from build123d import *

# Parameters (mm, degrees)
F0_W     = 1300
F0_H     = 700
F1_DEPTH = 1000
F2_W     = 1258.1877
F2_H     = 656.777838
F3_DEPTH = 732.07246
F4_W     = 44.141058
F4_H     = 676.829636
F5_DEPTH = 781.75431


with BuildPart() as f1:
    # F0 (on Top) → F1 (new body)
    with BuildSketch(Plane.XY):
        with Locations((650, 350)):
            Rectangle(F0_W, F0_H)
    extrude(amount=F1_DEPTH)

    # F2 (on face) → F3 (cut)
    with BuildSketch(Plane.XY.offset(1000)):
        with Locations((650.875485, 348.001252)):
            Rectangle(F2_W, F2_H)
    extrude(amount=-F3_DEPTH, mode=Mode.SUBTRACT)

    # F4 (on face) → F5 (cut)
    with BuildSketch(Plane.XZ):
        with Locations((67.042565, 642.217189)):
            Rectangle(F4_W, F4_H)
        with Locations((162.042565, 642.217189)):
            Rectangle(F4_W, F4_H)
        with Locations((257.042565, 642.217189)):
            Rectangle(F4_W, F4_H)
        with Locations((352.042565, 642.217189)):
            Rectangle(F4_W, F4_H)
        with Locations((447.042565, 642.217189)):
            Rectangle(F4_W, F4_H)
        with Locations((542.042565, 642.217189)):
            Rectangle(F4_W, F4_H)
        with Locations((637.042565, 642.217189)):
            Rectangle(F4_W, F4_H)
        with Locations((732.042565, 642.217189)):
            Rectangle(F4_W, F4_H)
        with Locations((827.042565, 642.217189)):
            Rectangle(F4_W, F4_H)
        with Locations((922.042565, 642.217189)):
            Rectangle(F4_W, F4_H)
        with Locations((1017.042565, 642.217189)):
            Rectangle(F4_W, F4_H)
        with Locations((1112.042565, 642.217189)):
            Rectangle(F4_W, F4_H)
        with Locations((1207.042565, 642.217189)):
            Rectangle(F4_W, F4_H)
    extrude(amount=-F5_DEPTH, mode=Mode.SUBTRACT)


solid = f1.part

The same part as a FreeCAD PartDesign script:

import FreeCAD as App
import Part
import Sketcher
from FreeCAD import Vector
Q = App.Units.Quantity


def add_polygon(sketch, points):
    """Adds a closed chain of lines whose ends are joined by coincident constraints."""
    first, n = sketch.GeometryCount, len(points)
    for a, b in zip(points, points[1:] + points[:1]):
        sketch.addGeometry(Part.LineSegment(App.Vector(*a, 0), App.Vector(*b, 0)), False)
    for i in range(n):
        sketch.addConstraint(Sketcher.Constraint("Coincident", first + i, 2, first + (i + 1) % n, 1))

doc = App.newDocument("Part")
body = doc.addObject("PartDesign::Body", "Body")

# Sketch on XY plane
sketch1 = body.newObject("Sketcher::SketchObject", "Sketch")
sketch1.AttachmentSupport = (doc.getObject("XY_Plane"), [""])
sketch1.MapMode = "FlatFace"
add_polygon(sketch1, [(0, 700), (0, 0), (1300, 0), (1300, 700)])  # lines 0-3
sketch1.addConstraint(Sketcher.Constraint("Vertical", 0))
sketch1.addConstraint(Sketcher.Constraint("Horizontal", 1))
sketch1.addConstraint(Sketcher.Constraint("Vertical", 2))
sketch1.addConstraint(Sketcher.Constraint("Horizontal", 3))
sketch1.addConstraint(Sketcher.Constraint("Coincident", 0, 2, -1, 1))
sketch1.addConstraint(Sketcher.Constraint("DistanceX", 1, 1, 1, 2, Q("1300 mm")))
sketch1.addConstraint(Sketcher.Constraint("DistanceY", 0, 2, 0, 1, Q("700 mm")))
pad1 = body.newObject("PartDesign::Pad", "Pad")
pad1.Profile = sketch1
pad1.Length = 1000

# Sketch on XY plane
sketch2 = body.newObject("Sketcher::SketchObject", "Sketch001")
sketch2.AttachmentSupport = (doc.getObject("XY_Plane"), [""])
sketch2.MapMode = "FlatFace"
sketch2.AttachmentOffset = App.Placement(Vector(0, 0, 1000), App.Rotation())
add_polygon(sketch2, [(21.781635, 676.390171), (21.781635, 19.612333), (1279.969335, 19.612333), (1279.969335, 676.390171)])  # lines 0-3
sketch2.addConstraint(Sketcher.Constraint("Vertical", 0))
sketch2.addConstraint(Sketcher.Constraint("Horizontal", 1))
sketch2.addConstraint(Sketcher.Constraint("Vertical", 2))
sketch2.addConstraint(Sketcher.Constraint("Horizontal", 3))
sketch2.addConstraint(Sketcher.Constraint("DistanceX", 1, 1, 1, 2, Q("1258.1877 mm")))
sketch2.addConstraint(Sketcher.Constraint("DistanceY", 0, 2, 0, 1, Q("656.777838 mm")))
sketch2.addConstraint(Sketcher.Constraint("DistanceY", -1, 1, 2, 2, Q("676.390171 mm")))
sketch2.addConstraint(Sketcher.Constraint("DistanceX", -1, 1, 0, 2, Q("21.781635 mm")))
pocket1 = body.newObject("PartDesign::Pocket", "Pocket")
pocket1.Profile = sketch2
pocket1.Length = 732.07246

# Sketch on XZ plane
sketch3 = body.newObject("Sketcher::SketchObject", "Sketch002")
sketch3.AttachmentSupport = (doc.getObject("XZ_Plane"), [""])
sketch3.MapMode = "FlatFace"
add_polygon(sketch3, [(44.972036, 980.632007), (44.972036, 303.802371), (89.113094, 303.802371), (89.113094, 980.632007)])  # lines 0-3
add_polygon(sketch3, [(139.972036, 980.632007), (139.972036, 303.802371), (184.113094, 303.802371), (184.113094, 980.632007)])  # lines 4-7
add_polygon(sketch3, [(234.972036, 980.632007), (234.972036, 303.802371), (279.113094, 303.802371), (279.113094, 980.632007)])  # lines 8-11
add_polygon(sketch3, [(329.972036, 980.632007), (329.972036, 303.802371), (374.113094, 303.802371), (374.113094, 980.632007)])  # lines 12-15
add_polygon(sketch3, [(424.972036, 980.632007), (424.972036, 303.802371), (469.113094, 303.802371), (469.113094, 980.632007)])  # lines 16-19
add_polygon(sketch3, [(519.972036, 980.632007), (519.972036, 303.802371), (564.113094, 303.802371), (564.113094, 980.632007)])  # lines 20-23
add_polygon(sketch3, [(614.972036, 980.632007), (614.972036, 303.802371), (659.113094, 303.802371), (659.113094, 980.632007)])  # lines 24-27
add_polygon(sketch3, [(709.972036, 980.632007), (709.972036, 303.802371), (754.113094, 303.802371), (754.113094, 980.632007)])  # lines 28-31
add_polygon(sketch3, [(804.972036, 980.632007), (804.972036, 303.802371), (849.113094, 303.802371), (849.113094, 980.632007)])  # lines 32-35
add_polygon(sketch3, [(899.972036, 980.632007), (899.972036, 303.802371), (944.113094, 303.802371), (944.113094, 980.632007)])  # lines 36-39
add_polygon(sketch3, [(994.972036, 980.632007), (994.972036, 303.802371), (1039.113094, 303.802371), (1039.113094, 980.632007)])  # lines 40-43
add_polygon(sketch3, [(1089.972036, 980.632007), (1089.972036, 303.802371), (1134.113094, 303.802371), (1134.113094, 980.632007)])  # lines 44-47
add_polygon(sketch3, [(1184.972036, 980.632007), (1184.972036, 303.802371), (1229.113094, 303.802371), (1229.113094, 980.632007)])  # lines 48-51
sketch3.addConstraint(Sketcher.Constraint("Vertical", 0))
sketch3.addConstraint(Sketcher.Constraint("Horizontal", 1))
sketch3.addConstraint(Sketcher.Constraint("Vertical", 2))
sketch3.addConstraint(Sketcher.Constraint("Horizontal", 3))
sketch3.addConstraint(Sketcher.Constraint("Vertical", 4))
sketch3.addConstraint(Sketcher.Constraint("Horizontal", 5))
sketch3.addConstraint(Sketcher.Constraint("Vertical", 6))
sketch3.addConstraint(Sketcher.Constraint("Horizontal", 7))
sketch3.addConstraint(Sketcher.Constraint("Vertical", 8))
sketch3.addConstraint(Sketcher.Constraint("Horizontal", 9))
sketch3.addConstraint(Sketcher.Constraint("Vertical", 10))
sketch3.addConstraint(Sketcher.Constraint("Horizontal", 11))
sketch3.addConstraint(Sketcher.Constraint("Vertical", 12))
sketch3.addConstraint(Sketcher.Constraint("Horizontal", 13))
sketch3.addConstraint(Sketcher.Constraint("Vertical", 14))
sketch3.addConstraint(Sketcher.Constraint("Horizontal", 15))
sketch3.addConstraint(Sketcher.Constraint("Vertical", 16))
sketch3.addConstraint(Sketcher.Constraint("Horizontal", 17))
sketch3.addConstraint(Sketcher.Constraint("Vertical", 18))
sketch3.addConstraint(Sketcher.Constraint("Horizontal", 19))
sketch3.addConstraint(Sketcher.Constraint("Vertical", 20))
sketch3.addConstraint(Sketcher.Constraint("Horizontal", 21))
sketch3.addConstraint(Sketcher.Constraint("Vertical", 22))
sketch3.addConstraint(Sketcher.Constraint("Horizontal", 23))
sketch3.addConstraint(Sketcher.Constraint("Vertical", 24))
sketch3.addConstraint(Sketcher.Constraint("Horizontal", 25))
sketch3.addConstraint(Sketcher.Constraint("Vertical", 26))
sketch3.addConstraint(Sketcher.Constraint("Horizontal", 27))
sketch3.addConstraint(Sketcher.Constraint("Vertical", 28))
sketch3.addConstraint(Sketcher.Constraint("Horizontal", 29))
sketch3.addConstraint(Sketcher.Constraint("Vertical", 30))
sketch3.addConstraint(Sketcher.Constraint("Horizontal", 31))
sketch3.addConstraint(Sketcher.Constraint("Vertical", 32))
sketch3.addConstraint(Sketcher.Constraint("Horizontal", 33))
sketch3.addConstraint(Sketcher.Constraint("Vertical", 34))
sketch3.addConstraint(Sketcher.Constraint("Horizontal", 35))
sketch3.addConstraint(Sketcher.Constraint("Vertical", 36))
sketch3.addConstraint(Sketcher.Constraint("Horizontal", 37))
sketch3.addConstraint(Sketcher.Constraint("Vertical", 38))
sketch3.addConstraint(Sketcher.Constraint("Horizontal", 39))
sketch3.addConstraint(Sketcher.Constraint("Vertical", 40))
sketch3.addConstraint(Sketcher.Constraint("Horizontal", 41))
sketch3.addConstraint(Sketcher.Constraint("Vertical", 42))
sketch3.addConstraint(Sketcher.Constraint("Horizontal", 43))
sketch3.addConstraint(Sketcher.Constraint("Vertical", 44))
sketch3.addConstraint(Sketcher.Constraint("Horizontal", 45))
sketch3.addConstraint(Sketcher.Constraint("Vertical", 46))
sketch3.addConstraint(Sketcher.Constraint("Horizontal", 47))
sketch3.addConstraint(Sketcher.Constraint("Vertical", 48))
sketch3.addConstraint(Sketcher.Constraint("Horizontal", 49))
sketch3.addConstraint(Sketcher.Constraint("Vertical", 50))
sketch3.addConstraint(Sketcher.Constraint("Horizontal", 51))
sketch3.addConstraint(Sketcher.Constraint("Horizontal", 1, 2, 4, 2))
sketch3.addConstraint(Sketcher.Constraint("Horizontal", 3, 2, 6, 2))
sketch3.addConstraint(Sketcher.Constraint("Horizontal", 5, 2, 8, 2))
sketch3.addConstraint(Sketcher.Constraint("Horizontal", 7, 2, 10, 2))
sketch3.addConstraint(Sketcher.Constraint("Horizontal", 9, 2, 12, 2))
sketch3.addConstraint(Sketcher.Constraint("Horizontal", 11, 2, 14, 2))
sketch3.addConstraint(Sketcher.Constraint("Horizontal", 13, 2, 16, 2))
sketch3.addConstraint(Sketcher.Constraint("Horizontal", 15, 2, 18, 2))
sketch3.addConstraint(Sketcher.Constraint("Horizontal", 17, 2, 20, 2))
sketch3.addConstraint(Sketcher.Constraint("Horizontal", 19, 2, 22, 2))
sketch3.addConstraint(Sketcher.Constraint("Horizontal", 21, 2, 24, 2))
sketch3.addConstraint(Sketcher.Constraint("Horizontal", 23, 2, 26, 2))
sketch3.addConstraint(Sketcher.Constraint("Horizontal", 25, 2, 28, 2))
sketch3.addConstraint(Sketcher.Constraint("Horizontal", 27, 2, 30, 2))
sketch3.addConstraint(Sketcher.Constraint("Horizontal", 29, 2, 32, 2))
sketch3.addConstraint(Sketcher.Constraint("Horizontal", 31, 2, 34, 2))
sketch3.addConstraint(Sketcher.Constraint("Horizontal", 33, 2, 36, 2))
sketch3.addConstraint(Sketcher.Constraint("Horizontal", 35, 2, 38, 2))
sketch3.addConstraint(Sketcher.Constraint("Horizontal", 37, 2, 40, 2))
sketch3.addConstraint(Sketcher.Constraint("Horizontal", 39, 2, 42, 2))
sketch3.addConstraint(Sketcher.Constraint("Horizontal", 41, 2, 44, 2))
sketch3.addConstraint(Sketcher.Constraint("Horizontal", 43, 2, 46, 2))
sketch3.addConstraint(Sketcher.Constraint("Horizontal", 45, 2, 48, 2))
sketch3.addConstraint(Sketcher.Constraint("Horizontal", 47, 2, 50, 2))
sketch3.addConstraint(Sketcher.Constraint("Equal", 3, 5))
sketch3.addConstraint(Sketcher.Constraint("Equal", 7, 9))
sketch3.addConstraint(Sketcher.Constraint("Equal", 11, 13))
sketch3.addConstraint(Sketcher.Constraint("Equal", 15, 17))
sketch3.addConstraint(Sketcher.Constraint("Equal", 19, 21))
sketch3.addConstraint(Sketcher.Constraint("Equal", 23, 25))
sketch3.addConstraint(Sketcher.Constraint("Equal", 27, 29))
sketch3.addConstraint(Sketcher.Constraint("Equal", 31, 33))
sketch3.addConstraint(Sketcher.Constraint("Equal", 35, 37))
sketch3.addConstraint(Sketcher.Constraint("Equal", 39, 41))
sketch3.addConstraint(Sketcher.Constraint("Equal", 43, 45))
sketch3.addConstraint(Sketcher.Constraint("Equal", 47, 49))
sketch3.addConstraint(Sketcher.Constraint("DistanceX", 0, 2, 4, 2, Q("95 mm")))
sketch3.addConstraint(Sketcher.Constraint("DistanceX", 4, 2, 8, 2, Q("95 mm")))
sketch3.addConstraint(Sketcher.Constraint("DistanceX", 8, 2, 12, 2, Q("95 mm")))
sketch3.addConstraint(Sketcher.Constraint("DistanceX", 12, 2, 16, 2, Q("95 mm")))
sketch3.addConstraint(Sketcher.Constraint("DistanceX", 16, 2, 20, 2, Q("95 mm")))
sketch3.addConstraint(Sketcher.Constraint("DistanceX", 20, 2, 24, 2, Q("95 mm")))
sketch3.addConstraint(Sketcher.Constraint("DistanceX", 24, 2, 28, 2, Q("95 mm")))
sketch3.addConstraint(Sketcher.Constraint("DistanceX", 28, 2, 32, 2, Q("95 mm")))
sketch3.addConstraint(Sketcher.Constraint("DistanceX", 32, 2, 36, 2, Q("95 mm")))
sketch3.addConstraint(Sketcher.Constraint("DistanceX", 36, 2, 40, 2, Q("95 mm")))
sketch3.addConstraint(Sketcher.Constraint("DistanceX", 40, 2, 44, 2, Q("95 mm")))
sketch3.addConstraint(Sketcher.Constraint("DistanceX", 44, 2, 48, 2, Q("95 mm")))
sketch3.addConstraint(Sketcher.Constraint("DistanceX", 21, 1, 21, 2, Q("44.141058 mm")))
sketch3.addConstraint(Sketcher.Constraint("DistanceY", 0, 2, 0, 1, Q("676.829636 mm")))
sketch3.addConstraint(Sketcher.Constraint("DistanceY", -1, 1, 0, 2, Q("303.802371 mm")))
sketch3.addConstraint(Sketcher.Constraint("DistanceX", -1, 1, 0, 2, Q("44.972036 mm")))
pocket2 = body.newObject("PartDesign::Pocket", "Pocket001")
pocket2.Profile = sketch3
pocket2.Length = 781.75431

doc.recompute()
